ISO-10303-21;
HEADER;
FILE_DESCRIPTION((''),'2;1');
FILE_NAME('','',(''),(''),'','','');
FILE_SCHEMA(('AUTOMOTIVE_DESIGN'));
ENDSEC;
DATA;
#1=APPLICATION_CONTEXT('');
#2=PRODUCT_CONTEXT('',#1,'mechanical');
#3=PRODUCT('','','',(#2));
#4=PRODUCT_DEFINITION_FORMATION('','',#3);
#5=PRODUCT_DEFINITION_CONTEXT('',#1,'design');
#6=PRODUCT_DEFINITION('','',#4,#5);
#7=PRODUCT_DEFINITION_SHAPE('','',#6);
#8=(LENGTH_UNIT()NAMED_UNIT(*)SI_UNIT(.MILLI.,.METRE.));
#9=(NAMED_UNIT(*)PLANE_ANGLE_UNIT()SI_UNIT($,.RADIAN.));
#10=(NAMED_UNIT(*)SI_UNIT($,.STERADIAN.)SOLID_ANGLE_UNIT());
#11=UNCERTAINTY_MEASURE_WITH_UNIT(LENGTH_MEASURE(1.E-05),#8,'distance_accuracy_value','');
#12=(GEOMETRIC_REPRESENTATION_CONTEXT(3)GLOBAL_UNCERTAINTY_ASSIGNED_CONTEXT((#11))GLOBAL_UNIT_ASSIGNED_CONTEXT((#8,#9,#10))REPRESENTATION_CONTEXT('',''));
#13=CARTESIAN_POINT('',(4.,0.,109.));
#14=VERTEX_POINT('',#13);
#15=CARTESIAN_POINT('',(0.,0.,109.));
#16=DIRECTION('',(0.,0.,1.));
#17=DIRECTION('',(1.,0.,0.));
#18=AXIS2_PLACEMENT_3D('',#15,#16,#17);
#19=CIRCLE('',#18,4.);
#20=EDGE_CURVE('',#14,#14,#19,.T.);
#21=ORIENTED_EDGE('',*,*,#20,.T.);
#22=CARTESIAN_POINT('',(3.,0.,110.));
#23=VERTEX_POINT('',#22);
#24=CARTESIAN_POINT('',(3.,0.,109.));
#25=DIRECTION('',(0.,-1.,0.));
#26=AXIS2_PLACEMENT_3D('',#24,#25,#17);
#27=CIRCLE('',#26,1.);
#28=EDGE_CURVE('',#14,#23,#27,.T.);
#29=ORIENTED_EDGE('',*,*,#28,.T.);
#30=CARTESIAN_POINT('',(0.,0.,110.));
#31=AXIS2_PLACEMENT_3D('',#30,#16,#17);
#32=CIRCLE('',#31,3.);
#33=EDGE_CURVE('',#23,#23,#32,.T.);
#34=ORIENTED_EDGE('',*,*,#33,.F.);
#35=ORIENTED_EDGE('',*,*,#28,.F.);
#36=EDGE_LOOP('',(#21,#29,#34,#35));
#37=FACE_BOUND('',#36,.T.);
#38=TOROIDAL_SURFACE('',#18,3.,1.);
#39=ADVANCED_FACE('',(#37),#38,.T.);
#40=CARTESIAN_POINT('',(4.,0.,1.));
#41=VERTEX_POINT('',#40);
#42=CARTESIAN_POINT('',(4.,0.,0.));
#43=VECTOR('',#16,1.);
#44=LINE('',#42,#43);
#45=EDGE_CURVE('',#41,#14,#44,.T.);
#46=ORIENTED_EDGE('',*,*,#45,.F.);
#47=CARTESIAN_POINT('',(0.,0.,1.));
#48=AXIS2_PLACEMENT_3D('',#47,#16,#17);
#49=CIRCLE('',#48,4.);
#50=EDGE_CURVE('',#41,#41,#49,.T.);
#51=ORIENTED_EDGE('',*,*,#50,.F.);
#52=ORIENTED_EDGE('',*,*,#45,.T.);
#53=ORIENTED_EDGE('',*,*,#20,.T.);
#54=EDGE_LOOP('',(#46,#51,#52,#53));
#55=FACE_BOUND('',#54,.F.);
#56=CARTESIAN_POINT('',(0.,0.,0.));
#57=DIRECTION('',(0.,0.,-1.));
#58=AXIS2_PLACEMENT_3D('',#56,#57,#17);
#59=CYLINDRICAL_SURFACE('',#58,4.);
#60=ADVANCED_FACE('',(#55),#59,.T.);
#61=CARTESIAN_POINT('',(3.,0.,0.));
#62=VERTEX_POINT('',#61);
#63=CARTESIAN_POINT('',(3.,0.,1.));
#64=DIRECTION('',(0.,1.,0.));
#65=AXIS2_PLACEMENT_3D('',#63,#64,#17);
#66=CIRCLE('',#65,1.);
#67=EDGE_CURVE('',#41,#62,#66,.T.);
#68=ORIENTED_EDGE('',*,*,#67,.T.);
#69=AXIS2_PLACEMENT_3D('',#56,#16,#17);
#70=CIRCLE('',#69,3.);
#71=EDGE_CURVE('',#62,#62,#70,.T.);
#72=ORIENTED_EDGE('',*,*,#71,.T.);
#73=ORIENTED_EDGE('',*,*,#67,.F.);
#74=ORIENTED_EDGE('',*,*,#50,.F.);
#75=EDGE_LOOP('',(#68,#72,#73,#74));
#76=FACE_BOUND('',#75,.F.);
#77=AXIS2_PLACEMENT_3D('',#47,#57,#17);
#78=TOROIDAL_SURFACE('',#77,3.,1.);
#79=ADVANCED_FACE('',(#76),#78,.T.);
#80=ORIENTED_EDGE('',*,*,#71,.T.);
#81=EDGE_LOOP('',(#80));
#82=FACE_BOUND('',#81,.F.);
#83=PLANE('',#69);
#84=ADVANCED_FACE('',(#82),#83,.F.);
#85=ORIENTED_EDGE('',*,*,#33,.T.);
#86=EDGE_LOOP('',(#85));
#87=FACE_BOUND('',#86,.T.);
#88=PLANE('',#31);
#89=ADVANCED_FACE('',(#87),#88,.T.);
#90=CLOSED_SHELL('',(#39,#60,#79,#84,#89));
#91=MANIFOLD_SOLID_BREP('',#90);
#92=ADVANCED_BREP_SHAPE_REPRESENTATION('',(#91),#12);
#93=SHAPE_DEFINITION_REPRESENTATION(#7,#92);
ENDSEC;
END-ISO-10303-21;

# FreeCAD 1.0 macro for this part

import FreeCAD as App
import Part
import Sketcher

V = App.Vector
Q = App.Units.Quantity


def edges_at(feature, points):
    """Names of the edges that pass closest to the given points."""
    edges = feature.Shape.Edges
    near = lambda p: min(range(len(edges)), key=lambda i: edges[i].distToShape(Part.Vertex(*p))[0])
    return sorted({f"Edge{near(p) + 1}" for p in points})

doc = App.newDocument("Part")
params = doc.addObject("Spreadsheet::Sheet", "Params")
for row, (alias, value) in enumerate([
    ("sketch1_diameter", "8 mm"),
    ("pad1_length", "110 mm"),
    ("fillet_radius", "1 mm"),
], start=1):
    params.set(f"A{row}", alias)
    params.set(f"B{row}", "=" + value)
    params.setAlias(f"B{row}", alias)

body = doc.addObject("PartDesign::Body", "Body")

sketch1 = body.newObject("Sketcher::SketchObject", "Sketch")
sketch1.AttachmentSupport = (doc.getObject("XY_Plane"), [""])
sketch1.MapMode = "FlatFace"
sketch1.addGeometry(Part.Circle(V(0, 0, 0), V(0, 0, 1), 4), False)
sketch1.addConstraint([
    Sketcher.Constraint("Coincident", 0, 3, -1, 1),
    Sketcher.Constraint("Diameter", 0, Q("8 mm")),
])
sketch1.setExpression("Constraints[1]", "Params.sketch1_diameter")
pad1 = body.newObject("PartDesign::Pad", "Pad")
pad1.Profile = sketch1
pad1.setExpression("Length", "Params.pad1_length")
doc.recompute()

fillet = body.newObject("PartDesign::Fillet", "Fillet")
fillet.Base = (pad1, edges_at(pad1, [(-4, 0, 110), (-4, 0, 0)]))
fillet.setExpression("Radius", "Params.fillet_radius")

doc.recompute()
